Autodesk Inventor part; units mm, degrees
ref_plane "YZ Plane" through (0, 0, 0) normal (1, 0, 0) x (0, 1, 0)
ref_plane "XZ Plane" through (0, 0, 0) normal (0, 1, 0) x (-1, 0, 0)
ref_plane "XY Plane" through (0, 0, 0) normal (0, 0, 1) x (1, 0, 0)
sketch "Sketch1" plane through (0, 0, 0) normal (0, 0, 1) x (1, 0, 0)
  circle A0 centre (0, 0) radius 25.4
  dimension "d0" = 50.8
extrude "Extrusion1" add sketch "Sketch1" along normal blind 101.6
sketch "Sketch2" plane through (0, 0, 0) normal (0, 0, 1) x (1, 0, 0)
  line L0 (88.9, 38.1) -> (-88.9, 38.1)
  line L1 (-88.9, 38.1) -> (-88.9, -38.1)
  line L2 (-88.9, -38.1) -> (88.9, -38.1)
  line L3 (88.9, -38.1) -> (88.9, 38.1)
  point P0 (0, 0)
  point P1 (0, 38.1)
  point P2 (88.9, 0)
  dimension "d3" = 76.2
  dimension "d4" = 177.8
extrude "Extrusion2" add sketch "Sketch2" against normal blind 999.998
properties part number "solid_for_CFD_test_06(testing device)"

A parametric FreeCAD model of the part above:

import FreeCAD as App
import Part
import Sketcher

V = App.Vector
Q = App.Units.Quantity

doc = App.newDocument("Part")
params = doc.addObject("Spreadsheet::Sheet", "Params")
for row, (alias, value) in enumerate([
    ("sketch1_diameter", "2 in"),
    ("pad1_length", "4 in"),
    ("sketch2_width", "7 in"),
    ("sketch2_height", "3 in"),
    ("pad2_length", "39.37 in"),
], start=1):
    params.set(f"A{row}", alias)
    params.set(f"B{row}", "=" + value)
    params.setAlias(f"B{row}", alias)

body = doc.addObject("PartDesign::Body", "Body")

sketch1 = body.newObject("Sketcher::SketchObject", "Sketch")
sketch1.AttachmentSupport = (doc.getObject("XY_Plane"), [""])
sketch1.MapMode = "FlatFace"
sketch1.addGeometry(Part.Circle(V(0, 0, 0), V(0, 0, 1), 25.4), False)
sketch1.addConstraint([
    Sketcher.Constraint("Coincident", 0, 3, -1, 1),
    Sketcher.Constraint("Diameter", 0, Q("2 in")),
])
sketch1.setExpression("Constraints[1]", "Params.sketch1_diameter")
pad1 = body.newObject("PartDesign::Pad", "Pad")
pad1.Profile = sketch1
pad1.setExpression("Length", "Params.pad1_length")

sketch2 = body.newObject("Sketcher::SketchObject", "Sketch001")
sketch2.AttachmentSupport = (doc.getObject("XY_Plane"), [""])
sketch2.MapMode = "FlatFace"
sketch2.addGeometry([
    Part.LineSegment(V(88.9, -38.1, 0), V(88.9, 38.1, 0)),
    Part.LineSegment(V(88.9, 38.1, 0), V(-88.9, 38.1, 0)),
    Part.LineSegment(V(-88.9, 38.1, 0), V(-88.9, -38.1, 0)),
    Part.LineSegment(V(-88.9, -38.1, 0), V(88.9, -38.1, 0)),
], False)
sketch2.addConstraint([
    Sketcher.Constraint("Coincident", 0, 2, 1, 1),
    Sketcher.Constraint("Coincident", 1, 2, 2, 1),
    Sketcher.Constraint("Coincident", 2, 2, 3, 1),
    Sketcher.Constraint("Coincident", 3, 2, 0, 1),
    Sketcher.Constraint("Vertical", 0),
    Sketcher.Constraint("Horizontal", 1),
    Sketcher.Constraint("Vertical", 2),
    Sketcher.Constraint("Horizontal", 3),
    Sketcher.Constraint("Symmetric", 0, 2, 2, 2, -1, 1),
    Sketcher.Constraint("DistanceX", 1, 2, 1, 1, Q("7 in")),
    Sketcher.Constraint("DistanceY", 0, 1, 0, 2, Q("3 in")),
])
sketch2.setExpression("Constraints[9]", "Params.sketch2_width")
sketch2.setExpression("Constraints[10]", "Params.sketch2_height")
pad2 = body.newObject("PartDesign::Pad", "Pad001")
pad2.Profile = sketch2
pad2.setExpression("Length", "Params.pad2_length")
pad2.Reversed = True

doc.recompute()
